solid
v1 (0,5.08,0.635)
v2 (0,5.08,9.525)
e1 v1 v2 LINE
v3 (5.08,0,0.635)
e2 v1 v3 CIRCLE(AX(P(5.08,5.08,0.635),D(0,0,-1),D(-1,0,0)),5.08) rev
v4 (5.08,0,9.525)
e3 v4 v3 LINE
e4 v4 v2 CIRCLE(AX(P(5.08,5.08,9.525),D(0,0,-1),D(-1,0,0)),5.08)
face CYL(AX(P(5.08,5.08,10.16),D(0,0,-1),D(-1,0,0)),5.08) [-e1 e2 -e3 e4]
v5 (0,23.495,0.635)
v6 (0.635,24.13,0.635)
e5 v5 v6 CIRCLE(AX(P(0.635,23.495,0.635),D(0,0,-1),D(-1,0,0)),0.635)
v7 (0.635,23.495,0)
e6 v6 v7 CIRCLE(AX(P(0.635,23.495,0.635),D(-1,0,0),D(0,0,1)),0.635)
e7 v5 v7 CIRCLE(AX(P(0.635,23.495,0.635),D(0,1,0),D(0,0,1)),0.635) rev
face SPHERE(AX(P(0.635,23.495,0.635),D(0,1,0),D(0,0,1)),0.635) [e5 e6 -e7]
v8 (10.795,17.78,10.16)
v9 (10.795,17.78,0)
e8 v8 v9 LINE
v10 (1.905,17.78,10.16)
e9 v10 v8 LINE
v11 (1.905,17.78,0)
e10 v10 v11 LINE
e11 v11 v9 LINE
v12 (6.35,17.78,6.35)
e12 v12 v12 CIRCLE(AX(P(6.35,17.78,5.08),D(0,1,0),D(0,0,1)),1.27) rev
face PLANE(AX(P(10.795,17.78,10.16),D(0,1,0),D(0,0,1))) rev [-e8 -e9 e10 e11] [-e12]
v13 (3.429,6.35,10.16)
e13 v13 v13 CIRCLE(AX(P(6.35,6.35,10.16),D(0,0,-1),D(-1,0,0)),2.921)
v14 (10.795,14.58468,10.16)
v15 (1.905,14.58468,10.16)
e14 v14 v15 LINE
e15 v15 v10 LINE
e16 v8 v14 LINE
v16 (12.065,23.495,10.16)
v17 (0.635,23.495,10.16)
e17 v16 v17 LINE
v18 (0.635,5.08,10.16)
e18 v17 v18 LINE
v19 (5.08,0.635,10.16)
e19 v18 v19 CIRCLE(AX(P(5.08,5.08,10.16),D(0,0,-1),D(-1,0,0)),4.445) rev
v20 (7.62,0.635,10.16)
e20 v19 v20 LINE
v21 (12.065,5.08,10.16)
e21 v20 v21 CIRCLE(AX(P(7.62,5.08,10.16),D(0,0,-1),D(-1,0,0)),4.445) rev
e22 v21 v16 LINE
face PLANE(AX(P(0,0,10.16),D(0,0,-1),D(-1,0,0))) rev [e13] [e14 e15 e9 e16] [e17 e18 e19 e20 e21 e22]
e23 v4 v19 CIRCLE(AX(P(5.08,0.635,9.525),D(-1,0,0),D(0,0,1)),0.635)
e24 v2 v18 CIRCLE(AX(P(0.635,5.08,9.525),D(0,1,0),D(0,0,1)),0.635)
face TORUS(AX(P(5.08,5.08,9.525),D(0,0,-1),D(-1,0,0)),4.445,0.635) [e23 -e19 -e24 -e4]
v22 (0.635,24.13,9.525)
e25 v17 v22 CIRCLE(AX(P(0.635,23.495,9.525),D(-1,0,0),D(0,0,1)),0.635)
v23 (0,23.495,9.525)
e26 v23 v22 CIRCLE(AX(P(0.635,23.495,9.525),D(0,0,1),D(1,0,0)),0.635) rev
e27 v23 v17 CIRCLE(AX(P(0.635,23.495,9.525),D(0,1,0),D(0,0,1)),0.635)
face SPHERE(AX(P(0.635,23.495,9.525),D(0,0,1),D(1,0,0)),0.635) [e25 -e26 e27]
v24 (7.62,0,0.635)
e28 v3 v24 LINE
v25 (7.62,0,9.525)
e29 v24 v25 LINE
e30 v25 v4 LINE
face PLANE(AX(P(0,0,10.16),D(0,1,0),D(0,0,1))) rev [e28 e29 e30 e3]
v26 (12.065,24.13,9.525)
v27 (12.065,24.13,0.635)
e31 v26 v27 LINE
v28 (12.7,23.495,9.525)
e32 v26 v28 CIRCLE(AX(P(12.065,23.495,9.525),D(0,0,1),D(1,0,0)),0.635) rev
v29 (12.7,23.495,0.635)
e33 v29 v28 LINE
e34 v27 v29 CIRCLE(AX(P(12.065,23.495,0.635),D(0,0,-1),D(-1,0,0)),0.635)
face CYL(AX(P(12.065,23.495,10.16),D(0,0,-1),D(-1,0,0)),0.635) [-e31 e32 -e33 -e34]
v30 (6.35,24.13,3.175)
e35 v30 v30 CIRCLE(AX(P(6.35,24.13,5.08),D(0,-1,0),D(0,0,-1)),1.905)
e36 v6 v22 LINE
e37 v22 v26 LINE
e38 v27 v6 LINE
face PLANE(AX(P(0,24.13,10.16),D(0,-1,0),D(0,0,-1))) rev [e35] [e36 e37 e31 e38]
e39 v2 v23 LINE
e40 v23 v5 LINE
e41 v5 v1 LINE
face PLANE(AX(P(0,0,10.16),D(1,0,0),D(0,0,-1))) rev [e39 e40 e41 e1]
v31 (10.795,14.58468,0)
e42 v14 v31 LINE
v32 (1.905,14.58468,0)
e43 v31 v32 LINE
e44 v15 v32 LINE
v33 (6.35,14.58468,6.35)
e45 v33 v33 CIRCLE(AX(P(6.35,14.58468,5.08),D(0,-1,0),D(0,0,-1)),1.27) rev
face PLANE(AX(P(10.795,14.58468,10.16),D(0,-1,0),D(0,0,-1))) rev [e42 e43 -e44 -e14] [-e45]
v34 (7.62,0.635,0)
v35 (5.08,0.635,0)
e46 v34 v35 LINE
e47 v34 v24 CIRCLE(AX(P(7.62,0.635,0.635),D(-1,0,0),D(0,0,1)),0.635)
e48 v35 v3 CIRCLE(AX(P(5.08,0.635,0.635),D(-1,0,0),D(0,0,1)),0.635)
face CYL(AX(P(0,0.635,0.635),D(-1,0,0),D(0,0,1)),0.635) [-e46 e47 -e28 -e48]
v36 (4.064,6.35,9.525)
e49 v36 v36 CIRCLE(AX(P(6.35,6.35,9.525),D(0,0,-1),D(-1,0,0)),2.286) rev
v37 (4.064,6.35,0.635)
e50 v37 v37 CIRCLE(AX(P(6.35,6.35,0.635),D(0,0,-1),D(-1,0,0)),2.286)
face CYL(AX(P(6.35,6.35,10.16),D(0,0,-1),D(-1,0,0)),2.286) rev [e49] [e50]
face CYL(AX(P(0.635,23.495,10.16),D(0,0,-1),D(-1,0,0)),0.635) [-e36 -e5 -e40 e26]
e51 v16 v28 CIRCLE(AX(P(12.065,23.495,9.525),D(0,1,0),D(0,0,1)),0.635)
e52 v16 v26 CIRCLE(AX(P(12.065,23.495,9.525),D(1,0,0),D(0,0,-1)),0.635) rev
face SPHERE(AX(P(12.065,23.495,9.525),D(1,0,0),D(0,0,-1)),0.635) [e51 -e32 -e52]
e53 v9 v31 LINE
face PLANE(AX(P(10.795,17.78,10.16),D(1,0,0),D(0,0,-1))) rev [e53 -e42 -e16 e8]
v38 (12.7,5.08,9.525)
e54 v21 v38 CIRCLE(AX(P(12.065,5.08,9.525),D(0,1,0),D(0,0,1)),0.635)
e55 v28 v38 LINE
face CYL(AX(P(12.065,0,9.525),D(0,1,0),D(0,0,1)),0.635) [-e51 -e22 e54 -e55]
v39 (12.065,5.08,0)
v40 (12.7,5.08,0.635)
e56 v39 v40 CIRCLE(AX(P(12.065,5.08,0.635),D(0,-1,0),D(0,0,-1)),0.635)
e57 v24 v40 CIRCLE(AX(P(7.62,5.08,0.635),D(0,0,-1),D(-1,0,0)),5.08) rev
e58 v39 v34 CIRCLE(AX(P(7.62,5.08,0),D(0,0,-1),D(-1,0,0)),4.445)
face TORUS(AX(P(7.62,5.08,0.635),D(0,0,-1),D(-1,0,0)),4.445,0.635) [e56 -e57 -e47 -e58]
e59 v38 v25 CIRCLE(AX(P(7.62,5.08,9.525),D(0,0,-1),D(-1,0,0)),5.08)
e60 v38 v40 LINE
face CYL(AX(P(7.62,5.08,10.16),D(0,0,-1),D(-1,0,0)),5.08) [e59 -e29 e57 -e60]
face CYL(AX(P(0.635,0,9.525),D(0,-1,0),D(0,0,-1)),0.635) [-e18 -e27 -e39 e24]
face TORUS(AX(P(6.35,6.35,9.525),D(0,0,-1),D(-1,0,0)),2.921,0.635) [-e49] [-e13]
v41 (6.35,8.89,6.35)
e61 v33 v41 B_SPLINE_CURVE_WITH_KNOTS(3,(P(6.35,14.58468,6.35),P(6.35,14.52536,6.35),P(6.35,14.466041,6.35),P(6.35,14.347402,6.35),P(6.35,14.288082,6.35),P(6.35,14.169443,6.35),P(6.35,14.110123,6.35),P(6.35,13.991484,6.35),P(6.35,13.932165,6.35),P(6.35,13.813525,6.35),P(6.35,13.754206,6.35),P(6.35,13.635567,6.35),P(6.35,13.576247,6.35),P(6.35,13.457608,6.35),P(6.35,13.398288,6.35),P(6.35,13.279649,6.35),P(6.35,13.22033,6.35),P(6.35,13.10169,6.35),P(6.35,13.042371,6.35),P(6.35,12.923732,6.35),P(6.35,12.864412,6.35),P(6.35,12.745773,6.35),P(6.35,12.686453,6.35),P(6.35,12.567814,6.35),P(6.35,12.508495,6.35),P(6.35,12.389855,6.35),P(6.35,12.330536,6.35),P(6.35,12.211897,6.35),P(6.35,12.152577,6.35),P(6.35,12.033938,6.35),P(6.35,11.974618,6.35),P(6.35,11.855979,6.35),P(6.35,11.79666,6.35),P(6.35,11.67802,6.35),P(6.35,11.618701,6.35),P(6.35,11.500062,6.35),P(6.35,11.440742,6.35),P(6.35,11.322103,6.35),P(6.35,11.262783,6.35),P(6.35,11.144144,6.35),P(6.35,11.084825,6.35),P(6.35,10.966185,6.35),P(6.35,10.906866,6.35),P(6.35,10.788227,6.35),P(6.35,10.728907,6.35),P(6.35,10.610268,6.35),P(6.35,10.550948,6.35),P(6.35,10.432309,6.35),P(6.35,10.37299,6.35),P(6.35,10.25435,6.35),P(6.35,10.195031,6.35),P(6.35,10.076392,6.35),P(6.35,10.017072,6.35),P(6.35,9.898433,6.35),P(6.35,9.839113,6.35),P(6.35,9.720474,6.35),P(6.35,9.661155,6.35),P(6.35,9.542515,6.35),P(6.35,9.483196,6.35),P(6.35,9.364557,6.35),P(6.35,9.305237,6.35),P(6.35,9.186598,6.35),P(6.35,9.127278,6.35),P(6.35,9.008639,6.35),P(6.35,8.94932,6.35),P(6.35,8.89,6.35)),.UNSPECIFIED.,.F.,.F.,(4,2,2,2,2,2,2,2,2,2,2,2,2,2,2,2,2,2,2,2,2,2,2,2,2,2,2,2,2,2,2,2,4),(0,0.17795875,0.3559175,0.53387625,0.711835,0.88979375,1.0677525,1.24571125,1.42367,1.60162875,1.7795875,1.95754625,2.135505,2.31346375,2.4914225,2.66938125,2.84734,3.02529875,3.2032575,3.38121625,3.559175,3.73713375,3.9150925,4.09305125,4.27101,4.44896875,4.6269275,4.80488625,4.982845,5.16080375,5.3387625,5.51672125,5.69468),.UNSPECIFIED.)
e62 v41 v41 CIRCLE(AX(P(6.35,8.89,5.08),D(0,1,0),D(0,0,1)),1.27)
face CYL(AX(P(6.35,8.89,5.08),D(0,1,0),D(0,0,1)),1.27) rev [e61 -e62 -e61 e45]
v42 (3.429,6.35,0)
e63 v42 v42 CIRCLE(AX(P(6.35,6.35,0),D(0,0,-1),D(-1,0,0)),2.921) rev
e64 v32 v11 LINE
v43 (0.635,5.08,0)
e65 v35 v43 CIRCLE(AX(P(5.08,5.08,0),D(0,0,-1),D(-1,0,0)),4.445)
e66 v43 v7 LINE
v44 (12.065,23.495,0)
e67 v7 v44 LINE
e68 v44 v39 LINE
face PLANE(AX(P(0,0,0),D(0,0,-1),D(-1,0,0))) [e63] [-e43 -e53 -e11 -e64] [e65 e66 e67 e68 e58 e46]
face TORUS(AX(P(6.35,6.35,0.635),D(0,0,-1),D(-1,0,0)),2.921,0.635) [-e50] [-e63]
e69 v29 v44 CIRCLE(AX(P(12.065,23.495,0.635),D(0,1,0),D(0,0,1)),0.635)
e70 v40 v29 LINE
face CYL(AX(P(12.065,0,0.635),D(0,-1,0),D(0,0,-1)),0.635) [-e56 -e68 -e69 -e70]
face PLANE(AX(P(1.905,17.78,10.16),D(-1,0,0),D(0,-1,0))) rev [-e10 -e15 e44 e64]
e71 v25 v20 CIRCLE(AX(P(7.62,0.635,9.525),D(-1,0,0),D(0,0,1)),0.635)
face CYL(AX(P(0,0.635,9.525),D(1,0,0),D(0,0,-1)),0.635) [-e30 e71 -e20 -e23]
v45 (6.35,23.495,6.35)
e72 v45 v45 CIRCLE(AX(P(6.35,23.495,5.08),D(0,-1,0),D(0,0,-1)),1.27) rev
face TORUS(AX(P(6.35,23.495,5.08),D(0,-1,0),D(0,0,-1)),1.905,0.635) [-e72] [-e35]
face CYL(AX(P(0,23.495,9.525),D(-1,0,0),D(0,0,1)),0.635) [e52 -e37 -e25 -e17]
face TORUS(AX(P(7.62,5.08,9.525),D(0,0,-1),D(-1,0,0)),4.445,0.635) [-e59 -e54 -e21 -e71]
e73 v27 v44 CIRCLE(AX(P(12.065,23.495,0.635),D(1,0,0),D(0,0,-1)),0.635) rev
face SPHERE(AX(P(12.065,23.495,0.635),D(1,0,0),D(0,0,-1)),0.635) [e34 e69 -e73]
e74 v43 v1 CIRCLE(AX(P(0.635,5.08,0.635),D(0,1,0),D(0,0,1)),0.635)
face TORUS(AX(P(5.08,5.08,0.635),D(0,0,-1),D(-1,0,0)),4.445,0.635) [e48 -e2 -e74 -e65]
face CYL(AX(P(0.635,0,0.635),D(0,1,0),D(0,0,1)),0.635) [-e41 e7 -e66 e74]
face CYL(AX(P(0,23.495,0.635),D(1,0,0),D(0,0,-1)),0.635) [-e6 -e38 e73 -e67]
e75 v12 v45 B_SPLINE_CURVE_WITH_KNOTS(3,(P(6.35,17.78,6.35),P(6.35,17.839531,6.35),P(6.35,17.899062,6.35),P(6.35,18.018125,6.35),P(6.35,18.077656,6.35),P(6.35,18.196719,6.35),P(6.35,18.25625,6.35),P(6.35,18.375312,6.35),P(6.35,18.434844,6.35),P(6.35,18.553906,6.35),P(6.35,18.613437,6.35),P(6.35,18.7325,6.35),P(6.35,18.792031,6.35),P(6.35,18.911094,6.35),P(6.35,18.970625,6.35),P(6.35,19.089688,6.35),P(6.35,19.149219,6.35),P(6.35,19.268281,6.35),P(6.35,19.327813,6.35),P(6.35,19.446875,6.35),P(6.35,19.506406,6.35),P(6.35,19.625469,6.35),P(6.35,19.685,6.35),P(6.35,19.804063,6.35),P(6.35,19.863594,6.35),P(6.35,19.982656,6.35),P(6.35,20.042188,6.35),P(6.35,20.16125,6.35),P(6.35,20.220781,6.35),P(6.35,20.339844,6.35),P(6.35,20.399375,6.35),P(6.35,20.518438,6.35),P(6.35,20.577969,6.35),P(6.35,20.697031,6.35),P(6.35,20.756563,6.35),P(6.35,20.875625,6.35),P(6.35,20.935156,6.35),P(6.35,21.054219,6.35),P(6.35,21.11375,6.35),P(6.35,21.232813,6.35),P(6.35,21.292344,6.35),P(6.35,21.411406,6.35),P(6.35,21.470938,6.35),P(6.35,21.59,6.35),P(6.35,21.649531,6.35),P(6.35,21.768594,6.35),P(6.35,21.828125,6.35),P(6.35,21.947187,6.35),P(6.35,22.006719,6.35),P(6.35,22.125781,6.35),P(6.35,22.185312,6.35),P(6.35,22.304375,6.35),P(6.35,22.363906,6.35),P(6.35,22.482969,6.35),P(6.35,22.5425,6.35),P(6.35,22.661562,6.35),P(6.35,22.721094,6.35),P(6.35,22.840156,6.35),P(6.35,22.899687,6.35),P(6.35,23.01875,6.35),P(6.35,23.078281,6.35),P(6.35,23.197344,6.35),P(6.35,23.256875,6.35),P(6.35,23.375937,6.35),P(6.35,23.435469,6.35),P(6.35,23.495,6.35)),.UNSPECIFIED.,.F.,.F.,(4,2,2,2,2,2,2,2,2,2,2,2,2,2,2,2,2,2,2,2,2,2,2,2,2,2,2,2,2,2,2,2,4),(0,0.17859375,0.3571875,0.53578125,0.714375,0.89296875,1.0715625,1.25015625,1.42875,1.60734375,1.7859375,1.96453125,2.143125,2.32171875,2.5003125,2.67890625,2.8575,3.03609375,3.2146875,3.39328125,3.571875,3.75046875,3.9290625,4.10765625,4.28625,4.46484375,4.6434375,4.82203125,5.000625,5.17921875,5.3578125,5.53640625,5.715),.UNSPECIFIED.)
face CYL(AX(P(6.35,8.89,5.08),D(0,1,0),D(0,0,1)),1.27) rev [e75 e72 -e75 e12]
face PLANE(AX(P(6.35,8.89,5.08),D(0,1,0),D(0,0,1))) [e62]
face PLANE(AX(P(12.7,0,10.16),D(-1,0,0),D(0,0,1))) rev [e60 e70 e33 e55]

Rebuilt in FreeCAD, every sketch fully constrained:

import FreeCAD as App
import Part
import Sketcher
from FreeCAD import Vector
Q = App.Units.Quantity


def edges_at(feature, points):
    """Names of the edges that pass closest to the given points."""
    edges = feature.Shape.Edges
    near = lambda p: min(range(len(edges)), key=lambda i: edges[i].distToShape(Part.Vertex(*p))[0])
    return sorted({f"Edge{near(p) + 1}" for p in points})


def add_polygon(sketch, points):
    """Adds a closed chain of lines whose ends are joined by coincident constraints."""
    first, n = sketch.GeometryCount, len(points)
    for a, b in zip(points, points[1:] + points[:1]):
        sketch.addGeometry(Part.LineSegment(App.Vector(*a, 0), App.Vector(*b, 0)), False)
    for i in range(n):
        sketch.addConstraint(Sketcher.Constraint("Coincident", first + i, 2, first + (i + 1) % n, 1))

doc = App.newDocument("Part")
body = doc.addObject("PartDesign::Body", "Body")

# Sketch on XY plane
sketch1 = doc.addObject("Sketcher::SketchObject", "Sketch")
body.addObject(sketch1)
sketch1.AttachmentSupport = (doc.XY_Plane, [""])
sketch1.MapMode = "FlatFace"
add_polygon(sketch1, [(0, 24.1), (0, 0), (12.7, 0), (12.7, 24.1)])  # lines 0-3
sketch1.addGeometry(Part.Circle(Vector(6.3, 6.3, 0), Vector(0, 0, 1), 2.3), False)  # 4
sketch1.addConstraint([
    Sketcher.Constraint("Vertical", 0),
    Sketcher.Constraint("Horizontal", 1),
    Sketcher.Constraint("Vertical", 2),
    Sketcher.Constraint("Horizontal", 3),
    Sketcher.Constraint("Coincident", 0, 2, -1, 1),
    Sketcher.Constraint("Diameter", 4, Q("0.18 in")),
    Sketcher.Constraint("DistanceX", 1, 1, 1, 2, Q("0.5 in")),
    Sketcher.Constraint("DistanceY", 0, 2, 0, 1, Q("0.95 in")),
    Sketcher.Constraint("DistanceY", 4, 3, 2, 2, Q("0.7 in")),
    Sketcher.Constraint("DistanceX", -1, 1, 4, 3, Q("0.25 in")),
])
pad1 = doc.addObject("PartDesign::Pad", "Pad")
body.addObject(pad1)
pad1.Profile = sketch1
pad1.Length = Q("0.4 in")

# Sketch on XZ plane
sketch2 = doc.addObject("Sketcher::SketchObject", "Sketch001")
body.addObject(sketch2)
sketch2.AttachmentSupport = (doc.XZ_Plane, [""])
sketch2.MapMode = "FlatFace"
sketch2.AttachmentOffset = App.Placement(Vector(0, 0, -0.95 * 25.4), App.Rotation())
sketch2.addGeometry(Part.Circle(Vector(6.3, 5.1, 0), Vector(0, 0, 1), 1.3), False)
sketch2.addConstraint([
    Sketcher.Constraint("Diameter", 0, Q("0.1 in")),
    Sketcher.Constraint("DistanceY", -1, 1, 0, 3, Q("0.2 in")),
    Sketcher.Constraint("DistanceX", -1, 1, 0, 3, Q("0.25 in")),
])
pocket1 = doc.addObject("PartDesign::Pocket", "Pocket")
body.addObject(pocket1)
pocket1.Profile = sketch2
pocket1.Length = Q("0.6 in")
pocket1.Reversed = True
doc.recompute()

fillet = doc.addObject("PartDesign::Fillet", "Fillet")
body.addObject(fillet)
fillet.Base = (pocket1, edges_at(pocket1, [(12.7, 0, 5.08), (0, 0, 5.08)]))
fillet.Radius = Q("0.2 in")
doc.recompute()

fillet2 = doc.addObject("PartDesign::Fillet", "Fillet001")
body.addObject(fillet2)
fillet2.Base = (fillet, edges_at(fillet, [
    (4.064, 6.35, 0),
    (4.064, 6.35, 10.16),
    (6.35, 24.13, 10.16),
    (6.35, 24.13, 3.81),
    (12.7, 14.605, 0),
    (12.7, 14.605, 10.16),
    (6.35, 0, 0),
    (1.488, 1.488, 0),
    (11.212, 1.488, 0),
    (6.35, 0, 10.16),
    (1.488, 1.488, 10.16),
    (11.212, 1.488, 10.16),
    (0, 14.605, 10.16),
    (6.35, 24.13, 0),
    (0, 14.605, 0),
    (0, 24.13, 5.08),
    (12.7, 24.13, 5.08),
]))
fillet2.Radius = Q("0.025 in")

# Sketch on XY plane
sketch3 = doc.addObject("Sketcher::SketchObject", "Sketch002")
body.addObject(sketch3)
sketch3.AttachmentSupport = (doc.XY_Plane, [""])
sketch3.MapMode = "FlatFace"
add_polygon(sketch3, [(10.8, 17.8), (10.8, 14.6), (1.9, 14.6), (1.9, 17.8)])  # lines 0-3
sketch3.addConstraint([
    Sketcher.Constraint("Vertical", 0),
    Sketcher.Constraint("Horizontal", 1),
    Sketcher.Constraint("Vertical", 2),
    Sketcher.Constraint("Horizontal", 3),
    Sketcher.Constraint("DistanceX", 1, 2, 1, 1, Q("0.35 in")),
    Sketcher.Constraint("DistanceY", -1, 1, 2, 2, Q("0.7 in")),
    Sketcher.Constraint("DistanceY", 0, 2, 0, 1, Q("0.1258 in")),
    Sketcher.Constraint("DistanceX", -1, 1, 0, 2, Q("0.425 in")),
])
pocket2 = doc.addObject("PartDesign::Pocket", "Pocket001")
body.addObject(pocket2)
pocket2.Profile = sketch3
pocket2.Type = "ThroughAll"
pocket2.Reversed = True

doc.recompute()
